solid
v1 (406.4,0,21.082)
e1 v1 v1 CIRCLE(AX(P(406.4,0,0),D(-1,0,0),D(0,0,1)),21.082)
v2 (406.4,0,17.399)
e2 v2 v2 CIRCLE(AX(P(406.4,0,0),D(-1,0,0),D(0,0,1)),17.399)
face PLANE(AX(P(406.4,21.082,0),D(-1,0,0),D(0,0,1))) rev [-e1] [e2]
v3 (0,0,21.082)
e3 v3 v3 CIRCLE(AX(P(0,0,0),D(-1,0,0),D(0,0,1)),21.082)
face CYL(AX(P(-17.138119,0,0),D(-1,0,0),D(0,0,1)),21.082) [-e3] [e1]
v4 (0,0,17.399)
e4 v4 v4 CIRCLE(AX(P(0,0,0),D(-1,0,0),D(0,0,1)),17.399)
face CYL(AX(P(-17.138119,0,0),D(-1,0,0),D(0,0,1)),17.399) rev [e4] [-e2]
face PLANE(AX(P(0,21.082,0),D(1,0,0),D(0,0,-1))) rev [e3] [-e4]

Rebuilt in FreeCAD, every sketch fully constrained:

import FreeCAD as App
import Part
import Sketcher
from FreeCAD import Vector
Q = App.Units.Quantity

doc = App.newDocument("Part")
body = doc.addObject("PartDesign::Body", "Body")

# Sketch on XY plane
sketch1 = body.newObject("Sketcher::SketchObject", "Sketch")
sketch1.AttachmentSupport = (doc.getObject("XY_Plane"), [""])
sketch1.MapMode = "FlatFace"
sketch1.addGeometry(Part.LineSegment(Vector(0, 21.082, 0), Vector(0, 17.399, 0)), False)
sketch1.addGeometry(Part.LineSegment(Vector(0, 17.399, 0), Vector(406.4, 17.399, 0)), False)
sketch1.addGeometry(Part.LineSegment(Vector(406.4, 17.399, 0), Vector(406.4, 21.082, 0)), False)
sketch1.addGeometry(Part.LineSegment(Vector(406.4, 21.082, 0), Vector(0, 21.082, 0)), False)
sketch1.addConstraint(Sketcher.Constraint("Coincident", 0, 2, 1, 1))
sketch1.addConstraint(Sketcher.Constraint("Coincident", 1, 2, 2, 1))
sketch1.addConstraint(Sketcher.Constraint("Coincident", 2, 2, 3, 1))
sketch1.addConstraint(Sketcher.Constraint("Coincident", 3, 2, 0, 1))
sketch1.addConstraint(Sketcher.Constraint("Vertical", 0))
sketch1.addConstraint(Sketcher.Constraint("Horizontal", 1))
sketch1.addConstraint(Sketcher.Constraint("Vertical", 2))
sketch1.addConstraint(Sketcher.Constraint("Horizontal", 3))
sketch1.addConstraint(Sketcher.Constraint("PointOnObject", 0, 2, -2))
sketch1.addConstraint(Sketcher.Constraint("DistanceX", 1, 1, 1, 2, Q("16 in")))
sketch1.addConstraint(Sketcher.Constraint("DistanceY", 0, 2, 0, 1, Q("0.145 in")))
sketch1.addConstraint(Sketcher.Constraint("DistanceY", -1, 1, 2, 2, Q("0.83 in")))
revolution = body.newObject("PartDesign::Revolution", "Revolution")
revolution.Profile = sketch1
revolution.ReferenceAxis = (sketch1, ["H_Axis"])
revolution.Angle = 360

doc.recompute()
